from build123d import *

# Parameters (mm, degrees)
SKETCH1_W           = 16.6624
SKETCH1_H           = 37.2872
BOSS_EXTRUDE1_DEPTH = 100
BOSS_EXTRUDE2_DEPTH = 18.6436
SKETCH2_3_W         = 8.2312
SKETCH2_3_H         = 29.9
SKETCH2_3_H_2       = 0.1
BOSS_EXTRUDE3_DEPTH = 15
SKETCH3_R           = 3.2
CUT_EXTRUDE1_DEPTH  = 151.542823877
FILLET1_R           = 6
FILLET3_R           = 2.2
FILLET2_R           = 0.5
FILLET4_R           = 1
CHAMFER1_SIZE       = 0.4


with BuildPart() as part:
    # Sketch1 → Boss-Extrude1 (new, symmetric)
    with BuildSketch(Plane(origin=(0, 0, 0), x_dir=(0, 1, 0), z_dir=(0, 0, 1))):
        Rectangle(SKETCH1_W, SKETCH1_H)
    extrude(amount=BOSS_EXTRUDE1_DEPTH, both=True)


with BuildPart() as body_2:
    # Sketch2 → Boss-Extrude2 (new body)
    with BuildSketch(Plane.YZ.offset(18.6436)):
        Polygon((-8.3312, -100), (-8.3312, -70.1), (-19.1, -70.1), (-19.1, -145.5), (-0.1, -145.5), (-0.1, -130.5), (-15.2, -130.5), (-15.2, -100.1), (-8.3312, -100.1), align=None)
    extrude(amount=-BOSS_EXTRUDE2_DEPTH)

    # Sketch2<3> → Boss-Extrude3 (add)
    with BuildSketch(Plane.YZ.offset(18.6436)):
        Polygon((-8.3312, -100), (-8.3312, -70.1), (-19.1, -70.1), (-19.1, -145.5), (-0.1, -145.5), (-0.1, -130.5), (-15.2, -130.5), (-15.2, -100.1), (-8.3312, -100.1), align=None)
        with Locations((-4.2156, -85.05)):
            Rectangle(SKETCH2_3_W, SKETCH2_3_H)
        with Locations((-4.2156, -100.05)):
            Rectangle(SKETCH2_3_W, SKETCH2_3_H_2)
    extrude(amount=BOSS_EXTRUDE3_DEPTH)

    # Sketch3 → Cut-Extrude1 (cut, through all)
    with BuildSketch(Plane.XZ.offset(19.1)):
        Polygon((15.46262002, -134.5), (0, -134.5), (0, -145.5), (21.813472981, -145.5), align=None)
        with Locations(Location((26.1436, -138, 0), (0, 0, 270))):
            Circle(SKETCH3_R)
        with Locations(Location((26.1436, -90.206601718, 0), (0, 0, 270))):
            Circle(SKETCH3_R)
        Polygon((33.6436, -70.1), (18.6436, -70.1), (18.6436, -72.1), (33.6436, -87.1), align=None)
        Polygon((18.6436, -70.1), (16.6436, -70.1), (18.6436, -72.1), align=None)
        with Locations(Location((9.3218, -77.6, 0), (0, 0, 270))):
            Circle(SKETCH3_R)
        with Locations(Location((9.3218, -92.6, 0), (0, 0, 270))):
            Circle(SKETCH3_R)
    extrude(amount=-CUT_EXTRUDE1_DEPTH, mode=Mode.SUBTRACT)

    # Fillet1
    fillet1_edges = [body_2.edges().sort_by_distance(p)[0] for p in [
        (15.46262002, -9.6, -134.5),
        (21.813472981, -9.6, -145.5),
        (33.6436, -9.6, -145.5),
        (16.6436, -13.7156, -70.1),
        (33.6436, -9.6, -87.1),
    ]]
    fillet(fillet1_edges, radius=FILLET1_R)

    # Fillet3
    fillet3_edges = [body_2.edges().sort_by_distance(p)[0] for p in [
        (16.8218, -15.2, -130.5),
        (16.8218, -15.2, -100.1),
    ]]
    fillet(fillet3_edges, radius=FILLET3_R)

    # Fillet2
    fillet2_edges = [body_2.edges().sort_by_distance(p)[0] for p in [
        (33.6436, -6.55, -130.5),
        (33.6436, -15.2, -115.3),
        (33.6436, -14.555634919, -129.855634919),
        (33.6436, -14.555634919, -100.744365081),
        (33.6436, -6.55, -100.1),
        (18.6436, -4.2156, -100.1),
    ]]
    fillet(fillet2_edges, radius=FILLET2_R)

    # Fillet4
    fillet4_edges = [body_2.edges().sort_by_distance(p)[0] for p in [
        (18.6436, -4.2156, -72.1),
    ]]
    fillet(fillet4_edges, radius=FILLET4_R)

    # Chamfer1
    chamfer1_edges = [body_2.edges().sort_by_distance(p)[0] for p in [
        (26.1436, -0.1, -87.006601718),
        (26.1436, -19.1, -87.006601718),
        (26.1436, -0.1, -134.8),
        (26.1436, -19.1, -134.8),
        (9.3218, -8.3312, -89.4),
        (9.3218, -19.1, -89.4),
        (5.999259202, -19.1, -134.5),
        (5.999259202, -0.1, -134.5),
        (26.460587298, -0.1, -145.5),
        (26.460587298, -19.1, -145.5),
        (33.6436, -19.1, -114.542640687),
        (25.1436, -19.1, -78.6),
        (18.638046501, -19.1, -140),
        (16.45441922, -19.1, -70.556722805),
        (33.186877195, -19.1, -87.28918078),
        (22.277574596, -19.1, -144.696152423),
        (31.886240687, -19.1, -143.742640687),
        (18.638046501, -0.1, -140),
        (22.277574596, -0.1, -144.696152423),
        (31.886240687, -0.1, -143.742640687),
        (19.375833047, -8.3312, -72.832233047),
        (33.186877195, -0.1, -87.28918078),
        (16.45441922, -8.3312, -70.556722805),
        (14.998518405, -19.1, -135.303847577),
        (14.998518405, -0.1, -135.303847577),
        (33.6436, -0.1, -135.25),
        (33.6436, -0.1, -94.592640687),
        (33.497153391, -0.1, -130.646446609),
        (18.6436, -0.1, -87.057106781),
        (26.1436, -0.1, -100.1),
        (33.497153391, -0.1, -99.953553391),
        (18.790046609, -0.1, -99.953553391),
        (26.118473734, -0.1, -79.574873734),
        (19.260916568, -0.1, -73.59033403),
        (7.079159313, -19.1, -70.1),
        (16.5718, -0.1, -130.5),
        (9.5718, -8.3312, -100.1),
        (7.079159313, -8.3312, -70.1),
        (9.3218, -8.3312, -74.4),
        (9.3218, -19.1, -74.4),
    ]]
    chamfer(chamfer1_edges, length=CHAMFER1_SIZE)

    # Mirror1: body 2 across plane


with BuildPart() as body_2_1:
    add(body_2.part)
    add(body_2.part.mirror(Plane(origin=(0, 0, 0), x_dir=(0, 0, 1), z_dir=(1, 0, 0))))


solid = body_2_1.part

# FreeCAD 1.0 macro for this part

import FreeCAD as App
import Part
import Sketcher

V = App.Vector
Q = App.Units.Quantity


def edges_at(feature, points):
    """Names of the edges that pass closest to the given points."""
    edges = feature.Shape.Edges
    near = lambda p: min(range(len(edges)), key=lambda i: edges[i].distToShape(Part.Vertex(*p))[0])
    return sorted({f"Edge{near(p) + 1}" for p in points})

doc = App.newDocument("Part")
body = doc.addObject("PartDesign::Body", "Body")

sketch1 = body.newObject("Sketcher::SketchObject", "Sketch")
sketch1.AttachmentSupport = (doc.getObject("XY_Plane"), [""])
sketch1.MapMode = "FlatFace"
sketch1.addGeometry([
    Part.LineSegment(V(-19, -8, 0), V(19, -8, 0)),
    Part.LineSegment(V(19, -8, 0), V(19, 8, 0)),
    Part.LineSegment(V(19, 8, 0), V(-19, 8, 0)),
    Part.LineSegment(V(-19, 8, 0), V(-19, -8, 0)),
], False)
sketch1.addConstraint([
    Sketcher.Constraint("Coincident", 0, 2, 1, 1),
    Sketcher.Constraint("Coincident", 1, 2, 2, 1),
    Sketcher.Constraint("Coincident", 2, 2, 3, 1),
    Sketcher.Constraint("Coincident", 3, 2, 0, 1),
    Sketcher.Constraint("Horizontal", 0),
    Sketcher.Constraint("Vertical", 1),
    Sketcher.Constraint("Horizontal", 2),
    Sketcher.Constraint("Vertical", 3),
    Sketcher.Constraint("Symmetric", 0, 2, 2, 2, -1, 1),
    Sketcher.Constraint("DistanceX", 0, 1, 0, 2, 37.2872),
    Sketcher.Constraint("DistanceY", 1, 1, 1, 2, 16.6624),
])
pad1 = body.newObject("PartDesign::Pad", "Pad")
pad1.Profile = sketch1
pad1.Length = 200
pad1.Midplane = True
body2 = doc.addObject("PartDesign::Body", "Body001")

sketch2 = body2.newObject("Sketcher::SketchObject", "Sketch001")
sketch2.AttachmentSupport = (doc.getObject("YZ_Plane001"), [""])
sketch2.MapMode = "FlatFace"
sketch2.AttachmentOffset = App.Placement(V(0, 0, 18.6436), App.Rotation())
sketch2.addGeometry([
    Part.LineSegment(V(-8, -70, 0), V(-19, -70, 0)),
    Part.LineSegment(V(-19, -70, 0), V(-19, -146, 0)),
    Part.LineSegment(V(-19, -146, 0), V(0, -146, 0)),
    Part.LineSegment(V(0, -146, 0), V(0, -130, 0)),
    Part.LineSegment(V(0, -130, 0), V(-15, -130, 0)),
    Part.LineSegment(V(-15, -130, 0), V(-15, -100, 0)),
    Part.LineSegment(V(-15, -100, 0), V(-8, -100, 0)),
    Part.LineSegment(V(-8, -100, 0), V(-8, -70, 0)),
], False)
sketch2.addConstraint([
    Sketcher.Constraint("Coincident", 0, 2, 1, 1),
    Sketcher.Constraint("Coincident", 1, 2, 2, 1),
    Sketcher.Constraint("Coincident", 2, 2, 3, 1),
    Sketcher.Constraint("Coincident", 3, 2, 4, 1),
    Sketcher.Constraint("Coincident", 4, 2, 5, 1),
    Sketcher.Constraint("Coincident", 5, 2, 6, 1),
    Sketcher.Constraint("Coincident", 6, 2, 7, 1),
    Sketcher.Constraint("Coincident", 7, 2, 0, 1),
    Sketcher.Constraint("Horizontal", 0),
    Sketcher.Constraint("Vertical", 1),
    Sketcher.Constraint("Horizontal", 2),
    Sketcher.Constraint("Vertical", 3),
    Sketcher.Constraint("Horizontal", 4),
    Sketcher.Constraint("Vertical", 5),
    Sketcher.Constraint("Horizontal", 6),
    Sketcher.Constraint("Vertical", 7),
    Sketcher.Constraint("DistanceX", 2, 1, 2, 2, 19.0),
    Sketcher.Constraint("DistanceY", 3, 1, 3, 2, 15.0),
    Sketcher.Constraint("DistanceY", 7, 1, 7, 2, 30.0),
    Sketcher.Constraint("DistanceX", 4, 2, 4, 1, 15.1),
    Sketcher.Constraint("DistanceY", 1, 2, 1, 1, 75.4),
    Sketcher.Constraint("DistanceX", 0, 2, -1, 1, 19.1),
    Sketcher.Constraint("DistanceY", 0, 2, -1, 1, 70.1),
    Sketcher.Constraint("DistanceX", 0, 2, 0, 1, 10.7688),
])
pad2 = body2.newObject("PartDesign::Pad", "Pad001")
pad2.Profile = sketch2
pad2.Length = 18.6436
pad2.Reversed = True

sketch3 = body2.newObject("Sketcher::SketchObject", "Sketch002")
sketch3.AttachmentSupport = (doc.getObject("YZ_Plane001"), [""])
sketch3.MapMode = "FlatFace"
sketch3.AttachmentOffset = App.Placement(V(0, 0, 18.6436), App.Rotation())
sketch3.addGeometry([
    Part.LineSegment(V(-19, -70, 0), V(-19, -146, 0)),
    Part.LineSegment(V(-19, -146, 0), V(0, -146, 0)),
    Part.LineSegment(V(0, -146, 0), V(0, -130, 0)),
    Part.LineSegment(V(0, -130, 0), V(-15, -130, 0)),
    Part.LineSegment(V(-15, -130, 0), V(-15, -100, 0)),
    Part.LineSegment(V(-15, -100, 0), V(0, -100, 0)),
    Part.LineSegment(V(0, -100, 0), V(0, -70, 0)),
    Part.LineSegment(V(0, -70, 0), V(-19, -70, 0)),
], False)
sketch3.addConstraint([
    Sketcher.Constraint("Coincident", 0, 2, 1, 1),
    Sketcher.Constraint("Coincident", 1, 2, 2, 1),
    Sketcher.Constraint("Coincident", 2, 2, 3, 1),
    Sketcher.Constraint("Coincident", 3, 2, 4, 1),
    Sketcher.Constraint("Coincident", 4, 2, 5, 1),
    Sketcher.Constraint("Coincident", 5, 2, 6, 1),
    Sketcher.Constraint("Coincident", 6, 2, 7, 1),
    Sketcher.Constraint("Coincident", 7, 2, 0, 1),
    Sketcher.Constraint("Vertical", 0),
    Sketcher.Constraint("Horizontal", 1),
    Sketcher.Constraint("Vertical", 2),
    Sketcher.Constraint("Horizontal", 3),
    Sketcher.Constraint("Vertical", 4),
    Sketcher.Constraint("Horizontal", 5),
    Sketcher.Constraint("Vertical", 6),
    Sketcher.Constraint("Horizontal", 7),
    Sketcher.Constraint("Vertical", 2, 2, 5, 2),
    Sketcher.Constraint("DistanceX", 1, 1, 1, 2, 19.0),
    Sketcher.Constraint("DistanceY", 2, 1, 2, 2, 15.0),
    Sketcher.Constraint("DistanceY", 6, 1, 6, 2, 30.0),
    Sketcher.Constraint("DistanceX", 3, 2, 3, 1, 15.1),
    Sketcher.Constraint("DistanceY", 0, 2, 0, 1, 75.4),
    Sketcher.Constraint("DistanceX", 0, 2, -1, 1, 19.1),
    Sketcher.Constraint("DistanceY", 0, 2, -1, 1, 145.5),
])
pad3 = body2.newObject("PartDesign::Pad", "Pad002")
pad3.Profile = sketch3
pad3.Length = 15

sketch4 = body2.newObject("Sketcher::SketchObject", "Sketch003")
sketch4.AttachmentSupport = (doc.getObject("XZ_Plane001"), [""])
sketch4.MapMode = "FlatFace"
sketch4.AttachmentOffset = App.Placement(V(0, 0, 19.1), App.Rotation())
sketch4.addGeometry([
    Part.LineSegment(V(15.5, -134.5, 0), V(0, -134.5, 0)),
    Part.LineSegment(V(0, -134.5, 0), V(0, -145.5, 0)),
    Part.LineSegment(V(0, -145.5, 0), V(21.8, -145.5, 0)),
    Part.LineSegment(V(21.8, -145.5, 0), V(15.5, -134.5, 0)),
    Part.Circle(V(26.1, -138, 0), V(0, 0, 1), 3.2),
    Part.Circle(V(26.1, -90.2, 0), V(0, 0, 1), 3.2),
    Part.LineSegment(V(33.6, -70.1, 0), V(16.6, -70.1, 0)),
    Part.LineSegment(V(16.6, -70.1, 0), V(33.6, -87.1, 0)),
    Part.LineSegment(V(33.6, -87.1, 0), V(33.6, -70.1, 0)),
    Part.Circle(V(9.3, -77.6, 0), V(0, 0, 1), 3.2),
    Part.Circle(V(9.3, -92.6, 0), V(0, 0, 1), 3.2),
], False)
sketch4.addConstraint([
    Sketcher.Constraint("Coincident", 0, 2, 1, 1),
    Sketcher.Constraint("Coincident", 1, 2, 2, 1),
    Sketcher.Constraint("Coincident", 2, 2, 3, 1),
    Sketcher.Constraint("Coincident", 3, 2, 0, 1),
    Sketcher.Constraint("Coincident", 6, 2, 7, 1),
    Sketcher.Constraint("Coincident", 7, 2, 8, 1),
    Sketcher.Constraint("Coincident", 8, 2, 6, 1),
    Sketcher.Constraint("Horizontal", 0),
    Sketcher.Constraint("Vertical", 1),
    Sketcher.Constraint("Horizontal", 2),
    Sketcher.Constraint("Horizontal", 6),
    Sketcher.Constraint("Vertical", 8),
    Sketcher.Constraint("Equal", 4, 5),
    Sketcher.Constraint("Equal", 5, 9),
    Sketcher.Constraint("Equal", 9, 10),
    Sketcher.Constraint("PointOnObject", 0, 2, -2),
    Sketcher.Constraint("Vertical", 4, 3, 5, 3),
    Sketcher.Constraint("Vertical", 9, 3, 10, 3),
    Sketcher.Constraint("Equal", 6, 8),
    Sketcher.Constraint("Diameter", 4, 6.4),
    Sketcher.Constraint("DistanceX", 6, 2, 6, 1, 17.0),
    Sketcher.Constraint("DistanceY", 1, 2, 1, 1, 11.0),
    Sketcher.Constraint("Angle", 3, Q("120 deg")),
    Sketcher.Constraint("DistanceY", 4, 3, -1, 1, 138.0),
    Sketcher.Constraint("DistanceY", 10, 3, 9, 3, 15.0),
    Sketcher.Constraint("DistanceY", 9, 3, -1, 1, 77.6),
    Sketcher.Constraint("DistanceY", 0, 2, -1, 1, 134.5),
    Sketcher.Constraint("DistanceY", 6, 2, -1, 1, 70.1),
    Sketcher.Constraint("DistanceX", 6, 2, 5, 3, 9.5),
    Sketcher.Constraint("DistanceX", 0, 2, 0, 1, 15.46262),
    Sketcher.Constraint("DistanceX", -1, 1, 4, 3, 26.1436),
    Sketcher.Constraint("DistanceY", 5, 3, -1, 1, 90.206602),
    Sketcher.Constraint("DistanceX", -1, 1, 9, 3, 9.3218),
])
pocket1 = body2.newObject("PartDesign::Pocket", "Pocket")
pocket1.Profile = sketch4
pocket1.Type = "ThroughAll"
doc.recompute()

fillet = body2.newObject("PartDesign::Fillet", "Fillet")
fillet.Base = (pocket1, edges_at(pocket1, [
    (15.463, -9.6, -134.5),
    (21.813, -9.6, -145.5),
    (33.644, -9.6, -145.5),
    (16.644, -13.716, -70.1),
    (33.644, -9.6, -87.1),
]))
fillet.Radius = 6
doc.recompute()

fillet2 = body2.newObject("PartDesign::Fillet", "Fillet001")
fillet2.Base = (fillet, edges_at(fillet, [(16.822, -15.2, -130.5), (16.822, -15.2, -100.1)]))
fillet2.Radius = 2.2
doc.recompute()

fillet3 = body2.newObject("PartDesign::Fillet", "Fillet002")
fillet3.Base = (fillet2, edges_at(fillet2, [
    (33.644, -6.55, -130.5),
    (33.644, -15.2, -115.3),
    (33.644, -14.556, -129.856),
    (33.644, -14.556, -100.744),
    (33.644, -6.55, -100.1),
    (18.644, -4.216, -100.1),
]))
fillet3.Radius = 0.5
doc.recompute()

fillet4 = body2.newObject("PartDesign::Fillet", "Fillet003")
fillet4.Base = (fillet3, edges_at(fillet3, [(18.644, -4.216, -72.1)]))
fillet4.Radius = 1
doc.recompute()

chamfer = body2.newObject("PartDesign::Chamfer", "Chamfer")
chamfer.Base = (fillet4, edges_at(fillet4, [
    (26.144, -0.1, -87.007),
    (26.144, -19.1, -87.007),
    (26.144, -0.1, -134.8),
    (26.144, -19.1, -134.8),
    (9.322, -8.331, -89.4),
    (9.322, -19.1, -89.4),
    (5.999, -19.1, -134.5),
    (5.999, -0.1, -134.5),
    (26.461, -0.1, -145.5),
    (26.461, -19.1, -145.5),
    (33.644, -19.1, -114.543),
    (25.144, -19.1, -78.6),
    (18.638, -19.1, -140),
    (16.454, -19.1, -70.557),
    (33.187, -19.1, -87.289),
    (22.278, -19.1, -144.696),
    (31.886, -19.1, -143.743),
    (18.638, -0.1, -140),
    (22.278, -0.1, -144.696),
    (31.886, -0.1, -143.743),
    (19.376, -8.331, -72.832),
    (33.187, -0.1, -87.289),
    (16.454, -8.331, -70.557),
    (14.999, -19.1, -135.304),
    (14.999, -0.1, -135.304),
    (33.644, -0.1, -135.25),
    (33.644, -0.1, -94.593),
    (33.497, -0.1, -130.646),
    (18.644, -0.1, -87.057),
    (26.144, -0.1, -100.1),
    (33.497, -0.1, -99.954),
    (18.79, -0.1, -99.954),
    (26.118, -0.1, -79.575),
    (19.261, -0.1, -73.59),
    (7.079, -19.1, -70.1),
    (16.572, -0.1, -130.5),
    (9.572, -8.331, -100.1),
    (7.079, -8.331, -70.1),
    (9.322, -8.331, -74.4),
    (9.322, -19.1, -74.4),
]))
chamfer.Size = 0.4
body3 = doc.addObject("PartDesign::Body", "Body002")
doc.recompute()

body3.BaseFeature = body2
doc.recompute()

mirroring = doc.addObject("Part::Mirroring", "Mirroring")
mirroring.Source = body2
mirroring.Base = V(0, 0, 0)
mirroring.Normal = V(1, 0, 0)
body4 = doc.addObject("PartDesign::Body", "Body003")
body4.BaseFeature = mirroring
boolean = body3.newObject("PartDesign::Boolean", "Boolean")
boolean.Type = "Fuse"
boolean.addObjects([body4])
doc.recompute()
body.Visibility = False
mirroring.Visibility = False

doc.recompute()
